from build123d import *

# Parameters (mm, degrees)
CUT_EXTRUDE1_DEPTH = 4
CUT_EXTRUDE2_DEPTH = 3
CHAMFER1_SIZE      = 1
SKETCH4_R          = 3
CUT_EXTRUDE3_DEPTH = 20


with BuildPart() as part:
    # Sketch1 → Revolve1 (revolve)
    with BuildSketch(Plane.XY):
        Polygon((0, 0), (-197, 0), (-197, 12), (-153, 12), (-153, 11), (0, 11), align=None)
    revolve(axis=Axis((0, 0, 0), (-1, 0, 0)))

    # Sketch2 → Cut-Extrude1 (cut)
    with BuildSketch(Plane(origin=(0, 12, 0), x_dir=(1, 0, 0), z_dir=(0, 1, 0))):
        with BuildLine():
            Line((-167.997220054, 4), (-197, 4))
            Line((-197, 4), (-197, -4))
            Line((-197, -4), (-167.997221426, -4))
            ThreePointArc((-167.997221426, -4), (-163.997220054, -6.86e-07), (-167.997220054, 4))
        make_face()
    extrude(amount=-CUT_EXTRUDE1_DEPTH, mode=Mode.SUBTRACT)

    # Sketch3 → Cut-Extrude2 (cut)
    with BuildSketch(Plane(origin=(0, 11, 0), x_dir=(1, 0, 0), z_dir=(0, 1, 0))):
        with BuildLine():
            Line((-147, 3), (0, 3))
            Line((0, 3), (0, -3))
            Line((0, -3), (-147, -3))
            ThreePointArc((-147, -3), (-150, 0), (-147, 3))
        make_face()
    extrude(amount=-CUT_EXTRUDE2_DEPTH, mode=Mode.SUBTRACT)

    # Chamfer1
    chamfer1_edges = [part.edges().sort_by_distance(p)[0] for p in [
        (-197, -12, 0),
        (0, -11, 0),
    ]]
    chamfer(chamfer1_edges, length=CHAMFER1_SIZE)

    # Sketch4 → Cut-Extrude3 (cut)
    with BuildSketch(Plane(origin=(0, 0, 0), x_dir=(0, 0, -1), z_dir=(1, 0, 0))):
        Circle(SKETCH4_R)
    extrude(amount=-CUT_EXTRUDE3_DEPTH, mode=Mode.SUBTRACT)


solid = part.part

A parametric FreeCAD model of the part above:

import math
import FreeCAD as App
import Part
import Sketcher

V = App.Vector
Q = App.Units.Quantity


def edges_at(feature, points):
    """Names of the edges that pass closest to the given points."""
    edges = feature.Shape.Edges
    near = lambda p: min(range(len(edges)), key=lambda i: edges[i].distToShape(Part.Vertex(*p))[0])
    return sorted({f"Edge{near(p) + 1}" for p in points})

doc = App.newDocument("Part")
body = doc.addObject("PartDesign::Body", "Body")

sketch1 = body.newObject("Sketcher::SketchObject", "Sketch")
sketch1.AttachmentSupport = (doc.getObject("XY_Plane"), [""])
sketch1.MapMode = "FlatFace"
sketch1.addGeometry([
    Part.LineSegment(V(-197, 0, 0), V(0, 0, 0)),
    Part.LineSegment(V(0, 0, 0), V(0, 11, 0)),
    Part.LineSegment(V(0, 11, 0), V(-153, 11, 0)),
    Part.LineSegment(V(-153, 11, 0), V(-153, 12, 0)),
    Part.LineSegment(V(-153, 12, 0), V(-197, 12, 0)),
    Part.LineSegment(V(-197, 12, 0), V(-197, 0, 0)),
], False)
sketch1.addConstraint([
    Sketcher.Constraint("Coincident", 0, 2, 1, 1),
    Sketcher.Constraint("Coincident", 1, 2, 2, 1),
    Sketcher.Constraint("Coincident", 2, 2, 3, 1),
    Sketcher.Constraint("Coincident", 3, 2, 4, 1),
    Sketcher.Constraint("Coincident", 4, 2, 5, 1),
    Sketcher.Constraint("Coincident", 5, 2, 0, 1),
    Sketcher.Constraint("Horizontal", 0),
    Sketcher.Constraint("Vertical", 1),
    Sketcher.Constraint("Horizontal", 2),
    Sketcher.Constraint("Vertical", 3),
    Sketcher.Constraint("Horizontal", 4),
    Sketcher.Constraint("Vertical", 5),
    Sketcher.Constraint("Coincident", 0, 2, -1, 1),
    Sketcher.Constraint("DistanceX", 0, 1, 0, 2, Q("197 mm")),
    Sketcher.Constraint("DistanceX", 2, 2, 2, 1, Q("153 mm")),
    Sketcher.Constraint("DistanceY", 1, 1, 1, 2, Q("11 mm")),
    Sketcher.Constraint("DistanceY", 3, 1, 3, 2, Q("1 mm")),
])
revolution = body.newObject("PartDesign::Revolution", "Revolution")
revolution.Profile = sketch1
revolution.ReferenceAxis = (sketch1, ["H_Axis"])
revolution.Angle = 360

sketch2 = body.newObject("Sketcher::SketchObject", "Sketch001")
sketch2.AttachmentSupport = (doc.getObject("XZ_Plane"), [""])
sketch2.MapMode = "FlatFace"
sketch2.AttachmentOffset = App.Placement(V(0, 0, -12), App.Rotation())
sketch2.addGeometry([
    Part.LineSegment(V(-168, -4, 0), V(-197, -4, 0)),
    Part.LineSegment(V(-197, -4, 0), V(-197, 4, 0)),
    Part.LineSegment(V(-197, 4, 0), V(-168, 4, 0)),
    Part.ArcOfCircle(Part.Circle(V(-168, 0, 0), V(0, 0, 1), 4), math.radians(-90), math.radians(90)),
], False)
sketch2.addConstraint([
    Sketcher.Constraint("Coincident", 0, 2, 1, 1),
    Sketcher.Constraint("Coincident", 1, 2, 2, 1),
    Sketcher.Constraint("Tangent", 2, 2, 3, 2),
    Sketcher.Constraint("Tangent", 3, 1, 0, 1),
    Sketcher.Constraint("Horizontal", 0),
    Sketcher.Constraint("Vertical", 1),
    Sketcher.Constraint("Horizontal", 2),
    Sketcher.Constraint("PointOnObject", 3, 3, -1),
    Sketcher.Constraint("Radius", 3, Q("4 mm")),
    Sketcher.Constraint("DistanceX", 0, 2, -1, 1, Q("197 mm")),
    Sketcher.Constraint("DistanceX", 0, 2, 0, 1, Q("29.00278 mm")),
])
pocket1 = body.newObject("PartDesign::Pocket", "Pocket")
pocket1.Profile = sketch2
pocket1.Length = 4
pocket1.Reversed = True

sketch3 = body.newObject("Sketcher::SketchObject", "Sketch002")
sketch3.AttachmentSupport = (doc.getObject("XZ_Plane"), [""])
sketch3.MapMode = "FlatFace"
sketch3.AttachmentOffset = App.Placement(V(0, 0, -11), App.Rotation())
sketch3.addGeometry([
    Part.LineSegment(V(0, -3, 0), V(-147, -3, 0)),
    Part.ArcOfCircle(Part.Circle(V(-147, 0, 0), V(0, 0, 1), 3), math.radians(90), math.radians(270)),
    Part.LineSegment(V(-147, 3, 0), V(0, 3, 0)),
    Part.LineSegment(V(0, 3, 0), V(0, -3, 0)),
], False)
sketch3.addConstraint([
    Sketcher.Constraint("Tangent", 0, 2, 1, 2),
    Sketcher.Constraint("Tangent", 1, 1, 2, 1),
    Sketcher.Constraint("Coincident", 2, 2, 3, 1),
    Sketcher.Constraint("Coincident", 3, 2, 0, 1),
    Sketcher.Constraint("Horizontal", 0),
    Sketcher.Constraint("Horizontal", 2),
    Sketcher.Constraint("Vertical", 3),
    Sketcher.Constraint("Symmetric", 2, 2, 3, 2, -1, 1),
    Sketcher.Constraint("Radius", 1, Q("3 mm")),
    Sketcher.Constraint("DistanceX", 0, 2, 0, 1, Q("147 mm")),
])
pocket2 = body.newObject("PartDesign::Pocket", "Pocket001")
pocket2.Profile = sketch3
pocket2.Length = 3
pocket2.Reversed = True
doc.recompute()

chamfer = body.newObject("PartDesign::Chamfer", "Chamfer")
chamfer.Base = (pocket2, edges_at(pocket2, [(-197, -12, 0), (0, -11, 0)]))
chamfer.Size = 1

sketch4 = body.newObject("Sketcher::SketchObject", "Sketch003")
sketch4.AttachmentSupport = (doc.getObject("YZ_Plane"), [""])
sketch4.MapMode = "FlatFace"
sketch4.addGeometry(Part.Circle(V(0, 0, 0), V(0, 0, 1), 3), False)
sketch4.addConstraint([
    Sketcher.Constraint("Coincident", 0, 3, -1, 1),
    Sketcher.Constraint("Diameter", 0, Q("6 mm")),
])
pocket3 = body.newObject("PartDesign::Pocket", "Pocket002")
pocket3.Profile = sketch4
pocket3.Length = 20

doc.recompute()
